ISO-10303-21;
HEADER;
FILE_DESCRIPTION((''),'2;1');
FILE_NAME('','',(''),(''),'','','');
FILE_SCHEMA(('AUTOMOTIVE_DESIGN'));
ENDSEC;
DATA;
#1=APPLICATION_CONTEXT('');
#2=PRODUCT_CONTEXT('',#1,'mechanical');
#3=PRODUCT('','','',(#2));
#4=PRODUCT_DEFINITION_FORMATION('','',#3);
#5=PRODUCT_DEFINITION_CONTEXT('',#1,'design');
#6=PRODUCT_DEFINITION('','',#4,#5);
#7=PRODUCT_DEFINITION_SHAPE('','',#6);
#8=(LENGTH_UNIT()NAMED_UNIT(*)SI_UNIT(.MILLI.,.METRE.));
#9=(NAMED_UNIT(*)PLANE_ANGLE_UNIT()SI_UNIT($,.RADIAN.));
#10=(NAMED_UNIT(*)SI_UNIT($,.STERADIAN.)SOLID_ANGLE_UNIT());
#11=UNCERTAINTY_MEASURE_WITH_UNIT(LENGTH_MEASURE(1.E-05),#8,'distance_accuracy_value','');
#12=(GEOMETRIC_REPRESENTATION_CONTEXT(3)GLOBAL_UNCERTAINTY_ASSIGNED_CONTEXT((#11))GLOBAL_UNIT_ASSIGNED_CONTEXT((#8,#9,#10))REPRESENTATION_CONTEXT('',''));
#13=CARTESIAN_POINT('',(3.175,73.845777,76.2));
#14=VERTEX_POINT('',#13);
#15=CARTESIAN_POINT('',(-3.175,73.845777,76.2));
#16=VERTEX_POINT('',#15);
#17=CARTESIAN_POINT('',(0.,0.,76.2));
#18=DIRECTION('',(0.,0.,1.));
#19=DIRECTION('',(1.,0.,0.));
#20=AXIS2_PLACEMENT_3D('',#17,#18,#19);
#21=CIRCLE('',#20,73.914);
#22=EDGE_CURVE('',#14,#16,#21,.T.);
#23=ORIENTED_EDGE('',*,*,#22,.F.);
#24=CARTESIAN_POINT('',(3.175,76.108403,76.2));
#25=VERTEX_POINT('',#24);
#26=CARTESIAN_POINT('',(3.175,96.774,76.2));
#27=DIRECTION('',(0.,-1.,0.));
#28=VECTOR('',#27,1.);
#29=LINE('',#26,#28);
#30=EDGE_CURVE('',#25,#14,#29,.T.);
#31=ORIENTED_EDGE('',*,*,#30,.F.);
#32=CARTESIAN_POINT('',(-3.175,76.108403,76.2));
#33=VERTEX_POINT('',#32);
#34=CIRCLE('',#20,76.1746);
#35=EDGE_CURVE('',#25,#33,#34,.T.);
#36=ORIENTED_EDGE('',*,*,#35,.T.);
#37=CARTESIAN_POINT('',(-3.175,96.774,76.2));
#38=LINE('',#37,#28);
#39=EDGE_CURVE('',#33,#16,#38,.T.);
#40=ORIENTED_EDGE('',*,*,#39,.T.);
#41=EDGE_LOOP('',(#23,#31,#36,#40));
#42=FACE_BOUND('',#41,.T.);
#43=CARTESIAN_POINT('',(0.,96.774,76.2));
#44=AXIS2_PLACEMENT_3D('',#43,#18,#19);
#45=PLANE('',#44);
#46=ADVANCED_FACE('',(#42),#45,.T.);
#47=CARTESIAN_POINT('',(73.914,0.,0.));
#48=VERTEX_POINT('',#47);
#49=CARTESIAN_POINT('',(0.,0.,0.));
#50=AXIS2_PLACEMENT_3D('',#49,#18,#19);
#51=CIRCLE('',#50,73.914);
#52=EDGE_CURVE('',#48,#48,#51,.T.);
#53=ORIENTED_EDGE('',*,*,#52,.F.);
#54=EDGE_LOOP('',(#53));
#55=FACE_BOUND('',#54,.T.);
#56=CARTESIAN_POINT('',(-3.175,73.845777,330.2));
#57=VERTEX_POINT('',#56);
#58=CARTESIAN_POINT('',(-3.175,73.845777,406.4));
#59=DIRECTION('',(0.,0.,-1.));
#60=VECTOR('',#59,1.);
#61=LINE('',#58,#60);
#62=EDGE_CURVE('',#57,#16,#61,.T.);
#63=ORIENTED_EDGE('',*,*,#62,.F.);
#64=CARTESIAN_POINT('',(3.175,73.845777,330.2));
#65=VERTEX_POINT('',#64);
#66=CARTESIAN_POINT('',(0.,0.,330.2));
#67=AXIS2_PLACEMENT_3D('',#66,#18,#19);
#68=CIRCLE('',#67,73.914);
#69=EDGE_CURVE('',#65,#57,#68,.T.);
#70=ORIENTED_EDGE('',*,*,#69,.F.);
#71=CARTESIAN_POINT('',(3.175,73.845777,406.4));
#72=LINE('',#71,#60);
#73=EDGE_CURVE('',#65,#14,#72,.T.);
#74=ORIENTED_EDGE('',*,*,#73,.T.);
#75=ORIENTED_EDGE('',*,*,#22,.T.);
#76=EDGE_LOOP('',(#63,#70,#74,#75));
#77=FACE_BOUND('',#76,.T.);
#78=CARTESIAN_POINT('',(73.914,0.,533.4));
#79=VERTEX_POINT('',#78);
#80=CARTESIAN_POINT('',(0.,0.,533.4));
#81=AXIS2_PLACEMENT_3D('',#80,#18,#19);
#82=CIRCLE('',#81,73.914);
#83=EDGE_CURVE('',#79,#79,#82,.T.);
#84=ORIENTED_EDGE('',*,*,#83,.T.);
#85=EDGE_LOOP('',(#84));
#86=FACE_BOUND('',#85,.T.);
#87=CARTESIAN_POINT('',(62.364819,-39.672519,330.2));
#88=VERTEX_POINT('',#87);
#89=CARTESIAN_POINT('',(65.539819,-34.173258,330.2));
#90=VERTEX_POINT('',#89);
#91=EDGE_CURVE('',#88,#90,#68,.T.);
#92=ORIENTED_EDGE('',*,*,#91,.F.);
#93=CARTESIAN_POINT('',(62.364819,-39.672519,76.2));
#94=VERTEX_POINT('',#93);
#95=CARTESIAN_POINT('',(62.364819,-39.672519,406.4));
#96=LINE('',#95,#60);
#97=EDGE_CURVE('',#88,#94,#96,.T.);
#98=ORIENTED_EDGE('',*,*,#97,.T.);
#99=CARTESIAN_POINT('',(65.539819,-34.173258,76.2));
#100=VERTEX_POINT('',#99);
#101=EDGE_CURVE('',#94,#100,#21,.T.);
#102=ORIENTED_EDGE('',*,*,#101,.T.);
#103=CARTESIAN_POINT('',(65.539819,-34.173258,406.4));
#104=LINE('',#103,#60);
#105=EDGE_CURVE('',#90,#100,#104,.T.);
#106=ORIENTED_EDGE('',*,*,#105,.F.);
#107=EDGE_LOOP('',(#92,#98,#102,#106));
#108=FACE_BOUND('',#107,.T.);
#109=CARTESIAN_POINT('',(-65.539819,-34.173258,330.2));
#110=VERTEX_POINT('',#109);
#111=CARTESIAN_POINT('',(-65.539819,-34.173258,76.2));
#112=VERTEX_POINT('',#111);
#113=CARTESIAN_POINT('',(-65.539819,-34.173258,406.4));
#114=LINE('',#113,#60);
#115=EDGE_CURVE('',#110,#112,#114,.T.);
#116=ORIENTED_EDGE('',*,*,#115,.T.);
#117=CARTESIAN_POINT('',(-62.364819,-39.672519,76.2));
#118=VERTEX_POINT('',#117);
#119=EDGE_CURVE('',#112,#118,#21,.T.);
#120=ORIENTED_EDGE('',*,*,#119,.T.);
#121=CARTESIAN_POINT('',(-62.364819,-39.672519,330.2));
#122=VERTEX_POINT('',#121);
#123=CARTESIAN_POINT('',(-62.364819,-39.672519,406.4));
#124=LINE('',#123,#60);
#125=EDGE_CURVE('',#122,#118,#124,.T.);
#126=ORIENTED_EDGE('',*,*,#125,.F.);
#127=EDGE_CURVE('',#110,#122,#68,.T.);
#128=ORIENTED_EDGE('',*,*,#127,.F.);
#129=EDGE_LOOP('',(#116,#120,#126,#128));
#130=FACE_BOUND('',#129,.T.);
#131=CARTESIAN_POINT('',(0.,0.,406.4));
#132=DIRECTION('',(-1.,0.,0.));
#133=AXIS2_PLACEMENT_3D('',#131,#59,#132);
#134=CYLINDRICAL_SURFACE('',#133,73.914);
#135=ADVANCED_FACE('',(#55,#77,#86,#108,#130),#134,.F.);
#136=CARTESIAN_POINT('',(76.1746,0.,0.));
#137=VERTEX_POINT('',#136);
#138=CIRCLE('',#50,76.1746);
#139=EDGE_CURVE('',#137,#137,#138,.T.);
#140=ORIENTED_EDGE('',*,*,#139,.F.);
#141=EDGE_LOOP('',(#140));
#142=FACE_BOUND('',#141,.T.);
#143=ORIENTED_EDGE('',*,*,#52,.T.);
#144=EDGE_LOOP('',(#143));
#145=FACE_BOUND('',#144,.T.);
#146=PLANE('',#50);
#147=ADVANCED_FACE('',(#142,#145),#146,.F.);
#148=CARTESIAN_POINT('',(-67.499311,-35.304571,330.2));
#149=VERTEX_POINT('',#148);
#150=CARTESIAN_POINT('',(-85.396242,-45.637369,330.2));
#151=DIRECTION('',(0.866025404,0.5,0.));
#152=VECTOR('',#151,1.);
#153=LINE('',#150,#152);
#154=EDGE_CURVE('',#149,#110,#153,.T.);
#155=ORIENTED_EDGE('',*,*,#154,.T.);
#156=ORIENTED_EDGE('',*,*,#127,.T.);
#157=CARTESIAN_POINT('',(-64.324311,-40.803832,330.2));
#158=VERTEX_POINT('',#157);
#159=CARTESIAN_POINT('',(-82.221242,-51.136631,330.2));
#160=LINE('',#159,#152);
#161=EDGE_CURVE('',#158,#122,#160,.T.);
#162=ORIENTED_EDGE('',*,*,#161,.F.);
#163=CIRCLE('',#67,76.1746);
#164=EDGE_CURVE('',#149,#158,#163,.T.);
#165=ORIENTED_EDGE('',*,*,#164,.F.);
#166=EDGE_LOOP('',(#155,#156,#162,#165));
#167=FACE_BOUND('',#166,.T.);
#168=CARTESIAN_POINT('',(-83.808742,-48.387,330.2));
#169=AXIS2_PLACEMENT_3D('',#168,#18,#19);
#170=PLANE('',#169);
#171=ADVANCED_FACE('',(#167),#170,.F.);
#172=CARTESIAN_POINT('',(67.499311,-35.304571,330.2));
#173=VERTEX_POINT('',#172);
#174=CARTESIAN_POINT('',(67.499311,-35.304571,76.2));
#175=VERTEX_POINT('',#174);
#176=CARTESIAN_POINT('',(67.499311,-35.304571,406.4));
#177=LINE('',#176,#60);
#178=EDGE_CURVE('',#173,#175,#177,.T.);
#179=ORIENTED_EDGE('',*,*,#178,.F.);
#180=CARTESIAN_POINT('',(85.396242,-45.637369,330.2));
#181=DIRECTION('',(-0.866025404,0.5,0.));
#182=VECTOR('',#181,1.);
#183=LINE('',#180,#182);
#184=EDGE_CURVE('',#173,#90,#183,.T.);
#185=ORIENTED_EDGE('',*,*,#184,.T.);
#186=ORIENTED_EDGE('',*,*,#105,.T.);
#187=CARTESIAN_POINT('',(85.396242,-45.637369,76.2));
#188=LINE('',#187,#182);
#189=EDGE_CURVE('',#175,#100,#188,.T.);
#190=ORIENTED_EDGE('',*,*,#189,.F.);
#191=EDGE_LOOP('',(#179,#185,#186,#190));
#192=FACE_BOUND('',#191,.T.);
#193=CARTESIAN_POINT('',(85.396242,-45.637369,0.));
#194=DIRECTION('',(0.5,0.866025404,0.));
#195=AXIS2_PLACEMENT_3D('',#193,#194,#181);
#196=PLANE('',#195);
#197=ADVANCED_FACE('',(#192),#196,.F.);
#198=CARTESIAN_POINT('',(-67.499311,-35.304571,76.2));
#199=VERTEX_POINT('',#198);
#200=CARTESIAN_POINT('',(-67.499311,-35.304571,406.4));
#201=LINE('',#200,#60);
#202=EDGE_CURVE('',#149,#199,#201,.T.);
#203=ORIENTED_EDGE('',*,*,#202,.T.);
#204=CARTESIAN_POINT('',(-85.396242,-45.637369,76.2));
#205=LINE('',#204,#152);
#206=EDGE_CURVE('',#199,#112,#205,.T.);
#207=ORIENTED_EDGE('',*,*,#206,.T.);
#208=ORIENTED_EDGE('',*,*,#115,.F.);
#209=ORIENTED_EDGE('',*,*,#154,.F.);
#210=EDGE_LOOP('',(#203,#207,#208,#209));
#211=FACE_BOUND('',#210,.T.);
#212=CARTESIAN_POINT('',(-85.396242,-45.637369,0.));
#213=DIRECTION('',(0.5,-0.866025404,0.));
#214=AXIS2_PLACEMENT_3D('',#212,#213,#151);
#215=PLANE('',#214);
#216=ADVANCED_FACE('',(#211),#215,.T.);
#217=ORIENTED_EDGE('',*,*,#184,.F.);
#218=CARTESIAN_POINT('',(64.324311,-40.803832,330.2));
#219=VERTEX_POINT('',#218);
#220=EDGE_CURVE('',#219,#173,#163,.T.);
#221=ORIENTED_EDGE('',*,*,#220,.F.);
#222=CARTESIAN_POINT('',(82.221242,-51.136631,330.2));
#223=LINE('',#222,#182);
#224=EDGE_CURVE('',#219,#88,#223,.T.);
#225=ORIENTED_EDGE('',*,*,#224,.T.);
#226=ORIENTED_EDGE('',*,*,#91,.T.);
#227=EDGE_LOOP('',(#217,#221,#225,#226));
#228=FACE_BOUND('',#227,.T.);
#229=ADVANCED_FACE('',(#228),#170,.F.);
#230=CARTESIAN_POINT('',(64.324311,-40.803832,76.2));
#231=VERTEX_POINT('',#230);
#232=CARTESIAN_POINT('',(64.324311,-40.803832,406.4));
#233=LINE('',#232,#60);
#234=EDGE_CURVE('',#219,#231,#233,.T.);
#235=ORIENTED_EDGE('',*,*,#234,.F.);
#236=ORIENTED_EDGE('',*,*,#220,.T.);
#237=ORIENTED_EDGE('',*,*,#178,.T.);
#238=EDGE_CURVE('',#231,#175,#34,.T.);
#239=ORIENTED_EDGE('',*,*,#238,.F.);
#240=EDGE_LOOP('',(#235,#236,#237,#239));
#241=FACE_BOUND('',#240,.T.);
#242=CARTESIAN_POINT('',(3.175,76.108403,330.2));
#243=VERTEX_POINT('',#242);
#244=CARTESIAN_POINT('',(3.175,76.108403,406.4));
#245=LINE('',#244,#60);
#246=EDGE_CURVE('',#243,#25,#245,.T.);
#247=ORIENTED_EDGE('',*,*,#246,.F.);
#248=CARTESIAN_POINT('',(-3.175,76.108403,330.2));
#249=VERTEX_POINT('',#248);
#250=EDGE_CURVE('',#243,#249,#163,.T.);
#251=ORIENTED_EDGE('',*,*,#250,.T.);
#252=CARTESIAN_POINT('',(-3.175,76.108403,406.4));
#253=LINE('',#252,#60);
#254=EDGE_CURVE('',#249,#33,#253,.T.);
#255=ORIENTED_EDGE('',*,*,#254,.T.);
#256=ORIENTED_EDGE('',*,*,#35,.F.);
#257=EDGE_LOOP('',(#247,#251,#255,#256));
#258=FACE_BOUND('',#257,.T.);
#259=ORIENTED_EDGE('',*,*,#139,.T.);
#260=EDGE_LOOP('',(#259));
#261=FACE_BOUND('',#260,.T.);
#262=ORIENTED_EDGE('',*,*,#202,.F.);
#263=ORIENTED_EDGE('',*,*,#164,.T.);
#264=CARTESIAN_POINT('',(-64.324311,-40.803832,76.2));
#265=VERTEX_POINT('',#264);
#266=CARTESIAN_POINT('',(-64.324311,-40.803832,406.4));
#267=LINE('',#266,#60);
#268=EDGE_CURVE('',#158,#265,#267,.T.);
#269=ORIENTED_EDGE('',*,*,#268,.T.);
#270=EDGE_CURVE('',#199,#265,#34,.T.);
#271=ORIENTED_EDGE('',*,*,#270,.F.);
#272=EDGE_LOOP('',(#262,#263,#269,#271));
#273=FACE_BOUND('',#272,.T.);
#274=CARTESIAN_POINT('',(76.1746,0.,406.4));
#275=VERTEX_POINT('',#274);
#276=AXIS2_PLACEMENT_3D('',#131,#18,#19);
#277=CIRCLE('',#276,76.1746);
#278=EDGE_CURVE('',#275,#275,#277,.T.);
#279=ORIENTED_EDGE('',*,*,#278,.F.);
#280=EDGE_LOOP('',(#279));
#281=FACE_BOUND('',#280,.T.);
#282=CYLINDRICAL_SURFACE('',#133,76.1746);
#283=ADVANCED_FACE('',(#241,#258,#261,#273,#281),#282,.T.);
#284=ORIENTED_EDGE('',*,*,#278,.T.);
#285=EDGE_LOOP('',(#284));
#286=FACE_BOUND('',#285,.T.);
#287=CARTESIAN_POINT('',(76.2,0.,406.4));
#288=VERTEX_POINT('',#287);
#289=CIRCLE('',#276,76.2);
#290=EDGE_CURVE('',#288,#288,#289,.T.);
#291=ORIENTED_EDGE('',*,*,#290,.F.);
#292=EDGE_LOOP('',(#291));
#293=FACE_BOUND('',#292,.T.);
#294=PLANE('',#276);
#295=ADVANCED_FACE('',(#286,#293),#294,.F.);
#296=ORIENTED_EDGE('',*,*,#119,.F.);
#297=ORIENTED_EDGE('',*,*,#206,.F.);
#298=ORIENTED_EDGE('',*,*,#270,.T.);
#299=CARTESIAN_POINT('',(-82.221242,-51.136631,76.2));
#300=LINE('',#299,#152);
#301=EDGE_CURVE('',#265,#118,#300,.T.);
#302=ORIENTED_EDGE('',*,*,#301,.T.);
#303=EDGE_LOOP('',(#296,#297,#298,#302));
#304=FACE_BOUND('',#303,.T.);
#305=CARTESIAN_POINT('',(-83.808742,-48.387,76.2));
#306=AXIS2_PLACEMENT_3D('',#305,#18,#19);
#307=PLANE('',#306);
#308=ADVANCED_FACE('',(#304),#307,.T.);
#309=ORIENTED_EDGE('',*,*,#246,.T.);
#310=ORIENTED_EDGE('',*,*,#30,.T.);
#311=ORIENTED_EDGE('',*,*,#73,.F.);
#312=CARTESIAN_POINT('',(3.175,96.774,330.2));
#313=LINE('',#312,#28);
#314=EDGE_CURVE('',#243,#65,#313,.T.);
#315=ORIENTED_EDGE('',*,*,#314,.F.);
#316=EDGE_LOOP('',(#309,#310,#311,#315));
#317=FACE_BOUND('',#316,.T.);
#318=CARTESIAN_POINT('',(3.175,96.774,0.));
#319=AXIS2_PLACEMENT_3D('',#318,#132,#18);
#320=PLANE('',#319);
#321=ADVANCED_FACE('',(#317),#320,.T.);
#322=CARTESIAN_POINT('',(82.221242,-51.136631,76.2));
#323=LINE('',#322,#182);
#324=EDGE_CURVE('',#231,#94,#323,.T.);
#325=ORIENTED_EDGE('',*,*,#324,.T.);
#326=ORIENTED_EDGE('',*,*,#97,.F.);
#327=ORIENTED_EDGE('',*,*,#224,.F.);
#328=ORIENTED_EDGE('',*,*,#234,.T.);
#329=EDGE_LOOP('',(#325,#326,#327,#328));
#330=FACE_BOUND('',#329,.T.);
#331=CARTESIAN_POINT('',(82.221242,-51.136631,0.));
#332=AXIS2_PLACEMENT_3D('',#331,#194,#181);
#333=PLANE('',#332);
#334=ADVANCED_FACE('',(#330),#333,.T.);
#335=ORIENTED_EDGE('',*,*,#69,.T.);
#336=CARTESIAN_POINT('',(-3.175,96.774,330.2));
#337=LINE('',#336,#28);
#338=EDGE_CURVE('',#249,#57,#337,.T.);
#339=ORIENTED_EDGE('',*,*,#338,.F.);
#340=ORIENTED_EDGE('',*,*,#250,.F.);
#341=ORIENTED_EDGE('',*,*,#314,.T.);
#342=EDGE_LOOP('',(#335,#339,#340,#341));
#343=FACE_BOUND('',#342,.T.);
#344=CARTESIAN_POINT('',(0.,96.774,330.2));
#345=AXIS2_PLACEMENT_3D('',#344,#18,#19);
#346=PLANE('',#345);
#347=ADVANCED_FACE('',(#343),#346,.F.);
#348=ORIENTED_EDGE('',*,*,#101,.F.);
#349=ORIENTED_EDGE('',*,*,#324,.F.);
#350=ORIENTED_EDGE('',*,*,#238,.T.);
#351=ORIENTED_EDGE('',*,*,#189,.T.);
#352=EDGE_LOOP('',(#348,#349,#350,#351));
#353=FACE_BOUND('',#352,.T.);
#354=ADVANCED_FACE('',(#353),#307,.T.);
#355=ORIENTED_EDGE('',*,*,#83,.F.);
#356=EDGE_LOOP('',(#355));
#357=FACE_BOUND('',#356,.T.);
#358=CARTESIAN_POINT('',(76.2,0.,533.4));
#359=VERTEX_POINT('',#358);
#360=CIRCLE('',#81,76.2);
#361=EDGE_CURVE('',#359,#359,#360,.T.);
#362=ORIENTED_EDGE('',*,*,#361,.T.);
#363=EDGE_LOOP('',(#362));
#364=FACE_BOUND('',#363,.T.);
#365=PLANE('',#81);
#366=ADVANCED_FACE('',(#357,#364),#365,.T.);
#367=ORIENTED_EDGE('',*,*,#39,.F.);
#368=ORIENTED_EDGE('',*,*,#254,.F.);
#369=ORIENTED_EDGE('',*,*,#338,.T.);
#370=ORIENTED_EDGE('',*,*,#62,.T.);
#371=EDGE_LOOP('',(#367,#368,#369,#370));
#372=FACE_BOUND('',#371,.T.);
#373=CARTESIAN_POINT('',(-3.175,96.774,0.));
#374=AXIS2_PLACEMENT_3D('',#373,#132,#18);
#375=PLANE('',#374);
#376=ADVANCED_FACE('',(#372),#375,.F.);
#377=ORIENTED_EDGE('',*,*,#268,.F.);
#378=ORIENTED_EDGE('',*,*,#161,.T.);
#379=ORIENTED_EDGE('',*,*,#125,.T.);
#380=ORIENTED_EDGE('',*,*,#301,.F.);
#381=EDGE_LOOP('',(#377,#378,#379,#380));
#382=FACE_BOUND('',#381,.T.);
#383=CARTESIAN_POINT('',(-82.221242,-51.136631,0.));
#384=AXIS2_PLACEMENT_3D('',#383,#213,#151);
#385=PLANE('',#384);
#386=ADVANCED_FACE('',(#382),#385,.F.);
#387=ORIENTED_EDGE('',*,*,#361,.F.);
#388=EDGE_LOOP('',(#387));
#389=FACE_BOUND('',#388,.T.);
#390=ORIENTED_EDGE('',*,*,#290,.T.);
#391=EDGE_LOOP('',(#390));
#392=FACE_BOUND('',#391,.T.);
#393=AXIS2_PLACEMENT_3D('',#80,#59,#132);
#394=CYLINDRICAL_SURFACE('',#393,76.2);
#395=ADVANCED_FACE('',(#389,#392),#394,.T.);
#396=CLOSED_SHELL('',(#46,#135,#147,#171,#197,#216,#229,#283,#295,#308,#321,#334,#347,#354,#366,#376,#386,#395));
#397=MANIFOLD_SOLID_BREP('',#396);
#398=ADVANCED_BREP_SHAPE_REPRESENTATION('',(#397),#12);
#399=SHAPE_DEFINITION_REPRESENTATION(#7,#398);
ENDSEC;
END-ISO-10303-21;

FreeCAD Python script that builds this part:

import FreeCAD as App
import Part
import Sketcher
from FreeCAD import Vector
Q = App.Units.Quantity


def add_polygon(sketch, points):
    """Adds a closed chain of lines whose ends are joined by coincident constraints."""
    first, n = sketch.GeometryCount, len(points)
    for a, b in zip(points, points[1:] + points[:1]):
        sketch.addGeometry(Part.LineSegment(App.Vector(*a, 0), App.Vector(*b, 0)), False)
    for i in range(n):
        sketch.addConstraint(Sketcher.Constraint("Coincident", first + i, 2, first + (i + 1) % n, 1))

doc = App.newDocument("Part")
params = doc.addObject("Spreadsheet::Sheet", "Params")
for row, (alias, value) in enumerate([
    ("sketch1_diameter", "5.82 in"),
    ("sketch1_diameter2", "5.998 in"),
    ("pad1_length", "16 in"),
    ("sketch2_diameter", "6 in"),
    ("sketch2_diameter2", "5.82 in"),
    ("pad2_length", "5 in"),
    ("sketch3_height", "10 in"),
    ("sketch3_width", "0.25 in"),
    ("pocket1_length", "3.81 in"),
], start=1):
    params.set(f"A{row}", alias)
    params.set(f"B{row}", "=" + value)
    params.setAlias(f"B{row}", alias)

body = doc.addObject("PartDesign::Body", "Body")

# Sketch on XY plane
sketch1 = body.newObject("Sketcher::SketchObject", "Sketch")
sketch1.AttachmentSupport = (doc.getObject("XY_Plane"), [""])
sketch1.MapMode = "FlatFace"
sketch1.addGeometry(Part.Circle(Vector(0, 0, 0), Vector(0, 0, 1), 76.1746), False)
sketch1.addGeometry(Part.Circle(Vector(0, 0, 0), Vector(0, 0, 1), 73.914), False)
sketch1.addConstraint(Sketcher.Constraint("Coincident", 0, 3, -1, 1))
sketch1.addConstraint(Sketcher.Constraint("Coincident", 1, 3, -1, 1))
sketch1.addConstraint(Sketcher.Constraint("Diameter", 1, Q("5.82 in")))
sketch1.addConstraint(Sketcher.Constraint("Diameter", 0, Q("5.998 in")))
sketch1.setExpression("Constraints[2]", "Params.sketch1_diameter")
sketch1.setExpression("Constraints[3]", "Params.sketch1_diameter2")
pad1 = body.newObject("PartDesign::Pad", "Pad")
pad1.Profile = sketch1
pad1.setExpression("Length", "Params.pad1_length")

# Sketch on XY plane
sketch2 = body.newObject("Sketcher::SketchObject", "Sketch001")
sketch2.AttachmentSupport = (doc.getObject("XY_Plane"), [""])
sketch2.MapMode = "FlatFace"
sketch2.AttachmentOffset = App.Placement(Vector(0, 0, 16 * 25.4), App.Rotation())
sketch2.addGeometry(Part.Circle(Vector(0, 0, 0), Vector(0, 0, 1), 76.2), False)
sketch2.addGeometry(Part.Circle(Vector(0, 0, 0), Vector(0, 0, 1), 73.914), False)
sketch2.addConstraint(Sketcher.Constraint("Coincident", 0, 3, -1, 1))
sketch2.addConstraint(Sketcher.Constraint("Coincident", 1, 3, -1, 1))
sketch2.addConstraint(Sketcher.Constraint("Diameter", 0, Q("6 in")))
sketch2.addConstraint(Sketcher.Constraint("Diameter", 1, Q("5.82 in")))
sketch2.setExpression("Constraints[2]", "Params.sketch2_diameter")
sketch2.setExpression("Constraints[3]", "Params.sketch2_diameter2")
pad2 = body.newObject("PartDesign::Pad", "Pad001")
pad2.Profile = sketch2
pad2.setExpression("Length", "Params.pad2_length")

# Sketch on XZ plane
sketch3 = body.newObject("Sketcher::SketchObject", "Sketch002")
sketch3.AttachmentSupport = (doc.getObject("XZ_Plane"), [""])
sketch3.MapMode = "FlatFace"
add_polygon(sketch3, [(-3.175, 76.2), (-3.175, 330.2), (3.175, 330.2), (3.175, 76.2)])  # lines 0-3
sketch3.addConstraint(Sketcher.Constraint("Vertical", 0))
sketch3.addConstraint(Sketcher.Constraint("Horizontal", 1))
sketch3.addConstraint(Sketcher.Constraint("Vertical", 2))
sketch3.addConstraint(Sketcher.Constraint("Horizontal", 3))
sketch3.addConstraint(Sketcher.Constraint("DistanceY", 0, 1, 0, 2, Q("10 in")))
sketch3.addConstraint(Sketcher.Constraint("DistanceY", -1, 1, 0, 2, Q("13 in")))
sketch3.addConstraint(Sketcher.Constraint("DistanceX", 1, 1, 1, 2, Q("0.25 in")))
sketch3.addConstraint(Sketcher.Constraint("DistanceX", 0, 2, -1, 1, Q("0.125 in")))
sketch3.setExpression("Constraints[8]", "Params.sketch3_height")
sketch3.setExpression("Constraints[10]", "Params.sketch3_width")
pocket1 = body.newObject("PartDesign::Pocket", "Pocket")
pocket1.Profile = sketch3
pocket1.setExpression("Length", "Params.pocket1_length")
doc.recompute()

polarpattern = body.newObject("PartDesign::PolarPattern", "PolarPattern")
polarpattern.Originals = [pocket1]
polarpattern.Axis = (doc.getObject("Z_Axis"), [""])
polarpattern.Angle = 360
polarpattern.Occurrences = 3
body.Tip = polarpattern

doc.recompute()
